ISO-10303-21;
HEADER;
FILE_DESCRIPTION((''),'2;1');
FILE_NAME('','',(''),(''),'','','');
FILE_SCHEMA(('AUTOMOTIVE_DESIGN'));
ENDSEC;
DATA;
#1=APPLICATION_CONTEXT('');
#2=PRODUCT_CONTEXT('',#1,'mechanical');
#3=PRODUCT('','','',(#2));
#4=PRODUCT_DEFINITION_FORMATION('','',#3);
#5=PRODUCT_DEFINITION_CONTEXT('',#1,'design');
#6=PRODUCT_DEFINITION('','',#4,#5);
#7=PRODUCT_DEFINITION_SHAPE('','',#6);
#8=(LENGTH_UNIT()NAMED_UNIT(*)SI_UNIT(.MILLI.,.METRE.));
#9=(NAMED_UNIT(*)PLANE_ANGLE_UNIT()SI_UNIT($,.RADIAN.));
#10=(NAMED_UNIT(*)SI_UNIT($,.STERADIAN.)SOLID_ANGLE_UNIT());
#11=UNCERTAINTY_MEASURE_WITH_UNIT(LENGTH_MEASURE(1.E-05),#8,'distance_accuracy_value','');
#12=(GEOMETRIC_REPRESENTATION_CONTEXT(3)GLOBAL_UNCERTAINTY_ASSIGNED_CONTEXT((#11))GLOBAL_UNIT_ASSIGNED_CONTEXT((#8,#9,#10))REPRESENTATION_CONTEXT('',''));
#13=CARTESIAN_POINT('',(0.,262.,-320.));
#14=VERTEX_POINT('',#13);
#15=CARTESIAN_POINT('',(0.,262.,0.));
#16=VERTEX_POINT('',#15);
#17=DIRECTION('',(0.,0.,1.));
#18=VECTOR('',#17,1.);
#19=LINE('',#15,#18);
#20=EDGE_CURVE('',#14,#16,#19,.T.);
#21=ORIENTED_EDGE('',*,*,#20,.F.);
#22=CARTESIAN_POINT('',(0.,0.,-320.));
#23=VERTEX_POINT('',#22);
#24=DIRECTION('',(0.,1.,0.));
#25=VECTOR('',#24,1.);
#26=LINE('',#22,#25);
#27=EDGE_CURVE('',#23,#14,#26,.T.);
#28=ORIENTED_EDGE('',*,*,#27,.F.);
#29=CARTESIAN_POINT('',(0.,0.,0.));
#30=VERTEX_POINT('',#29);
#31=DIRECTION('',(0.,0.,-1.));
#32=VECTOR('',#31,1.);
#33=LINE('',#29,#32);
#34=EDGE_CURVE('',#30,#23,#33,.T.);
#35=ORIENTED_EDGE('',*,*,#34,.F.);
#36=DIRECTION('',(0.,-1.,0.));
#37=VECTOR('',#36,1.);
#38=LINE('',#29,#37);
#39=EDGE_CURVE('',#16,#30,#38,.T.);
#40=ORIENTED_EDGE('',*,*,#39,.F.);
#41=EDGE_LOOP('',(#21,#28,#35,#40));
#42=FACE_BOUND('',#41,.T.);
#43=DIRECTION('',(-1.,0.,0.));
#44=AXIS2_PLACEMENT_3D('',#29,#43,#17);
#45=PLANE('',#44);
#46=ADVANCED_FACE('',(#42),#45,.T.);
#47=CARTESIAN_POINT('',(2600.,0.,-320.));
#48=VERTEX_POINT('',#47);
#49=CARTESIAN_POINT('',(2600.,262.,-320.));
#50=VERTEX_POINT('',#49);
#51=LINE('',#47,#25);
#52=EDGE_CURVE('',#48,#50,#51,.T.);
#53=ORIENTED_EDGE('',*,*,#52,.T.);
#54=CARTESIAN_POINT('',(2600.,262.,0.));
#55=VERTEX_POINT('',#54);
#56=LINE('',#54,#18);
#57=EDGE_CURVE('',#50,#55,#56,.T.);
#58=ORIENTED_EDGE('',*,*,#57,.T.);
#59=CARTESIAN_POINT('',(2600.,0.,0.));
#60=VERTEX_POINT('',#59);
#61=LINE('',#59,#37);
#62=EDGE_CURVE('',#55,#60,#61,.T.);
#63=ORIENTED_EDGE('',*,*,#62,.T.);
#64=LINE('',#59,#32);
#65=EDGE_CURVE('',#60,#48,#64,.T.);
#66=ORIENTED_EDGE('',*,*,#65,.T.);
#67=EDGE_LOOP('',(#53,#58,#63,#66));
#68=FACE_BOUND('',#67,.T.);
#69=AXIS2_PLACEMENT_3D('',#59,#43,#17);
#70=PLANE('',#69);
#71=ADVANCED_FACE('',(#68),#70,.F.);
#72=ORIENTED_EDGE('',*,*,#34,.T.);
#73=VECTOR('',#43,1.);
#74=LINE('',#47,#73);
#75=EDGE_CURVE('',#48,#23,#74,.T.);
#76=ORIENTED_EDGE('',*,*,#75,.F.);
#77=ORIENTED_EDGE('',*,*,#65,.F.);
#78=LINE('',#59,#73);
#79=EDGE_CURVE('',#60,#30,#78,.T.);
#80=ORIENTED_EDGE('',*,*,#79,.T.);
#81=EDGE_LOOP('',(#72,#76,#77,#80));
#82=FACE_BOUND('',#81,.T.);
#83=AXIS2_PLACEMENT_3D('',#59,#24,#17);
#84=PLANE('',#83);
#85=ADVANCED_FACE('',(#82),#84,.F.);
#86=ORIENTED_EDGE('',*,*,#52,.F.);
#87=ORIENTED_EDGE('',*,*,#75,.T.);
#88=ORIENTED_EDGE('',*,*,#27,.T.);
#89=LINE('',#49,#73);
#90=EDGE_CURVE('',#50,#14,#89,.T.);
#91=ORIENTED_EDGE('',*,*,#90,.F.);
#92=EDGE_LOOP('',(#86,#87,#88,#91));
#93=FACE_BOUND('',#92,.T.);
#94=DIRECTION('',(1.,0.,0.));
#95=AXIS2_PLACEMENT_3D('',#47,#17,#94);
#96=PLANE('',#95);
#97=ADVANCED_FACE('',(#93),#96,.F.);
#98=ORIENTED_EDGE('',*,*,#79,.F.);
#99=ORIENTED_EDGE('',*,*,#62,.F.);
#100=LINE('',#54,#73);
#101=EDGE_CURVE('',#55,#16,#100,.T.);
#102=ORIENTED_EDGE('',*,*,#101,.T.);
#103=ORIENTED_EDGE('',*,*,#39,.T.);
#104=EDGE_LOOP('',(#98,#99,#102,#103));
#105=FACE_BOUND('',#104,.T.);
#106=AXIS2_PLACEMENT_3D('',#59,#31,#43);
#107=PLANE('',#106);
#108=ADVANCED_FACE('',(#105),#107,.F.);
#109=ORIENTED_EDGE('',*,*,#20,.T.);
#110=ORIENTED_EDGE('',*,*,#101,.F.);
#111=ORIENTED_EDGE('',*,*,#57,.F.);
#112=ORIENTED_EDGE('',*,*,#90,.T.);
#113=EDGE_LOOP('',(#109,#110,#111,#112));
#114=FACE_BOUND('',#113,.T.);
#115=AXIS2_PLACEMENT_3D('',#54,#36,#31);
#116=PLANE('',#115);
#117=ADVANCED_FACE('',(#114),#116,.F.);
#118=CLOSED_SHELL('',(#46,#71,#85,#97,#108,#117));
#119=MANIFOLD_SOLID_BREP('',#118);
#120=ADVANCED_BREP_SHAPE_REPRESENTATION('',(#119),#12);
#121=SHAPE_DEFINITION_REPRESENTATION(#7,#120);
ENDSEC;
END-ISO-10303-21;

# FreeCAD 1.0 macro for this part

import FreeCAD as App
import Part
import Sketcher

V = App.Vector

doc = App.newDocument("Part")
body = doc.addObject("PartDesign::Body", "Body")

sketch1 = body.newObject("Sketcher::SketchObject", "Sketch")
sketch1.AttachmentSupport = (doc.getObject("YZ_Plane"), [""])
sketch1.MapMode = "FlatFace"
sketch1.addGeometry([
    Part.LineSegment(V(262, 0, 0), V(0, 0, 0)),
    Part.LineSegment(V(0, 0, 0), V(0, -320, 0)),
    Part.LineSegment(V(0, -320, 0), V(262, -320, 0)),
    Part.LineSegment(V(262, -320, 0), V(262, 0, 0)),
], False)
sketch1.addConstraint([
    Sketcher.Constraint("Coincident", 0, 2, 1, 1),
    Sketcher.Constraint("Coincident", 1, 2, 2, 1),
    Sketcher.Constraint("Coincident", 2, 2, 3, 1),
    Sketcher.Constraint("Coincident", 3, 2, 0, 1),
    Sketcher.Constraint("Horizontal", 0),
    Sketcher.Constraint("Vertical", 1),
    Sketcher.Constraint("Horizontal", 2),
    Sketcher.Constraint("Vertical", 3),
    Sketcher.Constraint("Coincident", 0, 2, -1, 1),
    Sketcher.Constraint("DistanceX", 0, 2, 0, 1, 262.0),
    Sketcher.Constraint("DistanceY", 1, 2, 1, 1, 320.0),
])
pad1 = body.newObject("PartDesign::Pad", "Pad")
pad1.Profile = sketch1
pad1.Length = 2600

doc.recompute()
